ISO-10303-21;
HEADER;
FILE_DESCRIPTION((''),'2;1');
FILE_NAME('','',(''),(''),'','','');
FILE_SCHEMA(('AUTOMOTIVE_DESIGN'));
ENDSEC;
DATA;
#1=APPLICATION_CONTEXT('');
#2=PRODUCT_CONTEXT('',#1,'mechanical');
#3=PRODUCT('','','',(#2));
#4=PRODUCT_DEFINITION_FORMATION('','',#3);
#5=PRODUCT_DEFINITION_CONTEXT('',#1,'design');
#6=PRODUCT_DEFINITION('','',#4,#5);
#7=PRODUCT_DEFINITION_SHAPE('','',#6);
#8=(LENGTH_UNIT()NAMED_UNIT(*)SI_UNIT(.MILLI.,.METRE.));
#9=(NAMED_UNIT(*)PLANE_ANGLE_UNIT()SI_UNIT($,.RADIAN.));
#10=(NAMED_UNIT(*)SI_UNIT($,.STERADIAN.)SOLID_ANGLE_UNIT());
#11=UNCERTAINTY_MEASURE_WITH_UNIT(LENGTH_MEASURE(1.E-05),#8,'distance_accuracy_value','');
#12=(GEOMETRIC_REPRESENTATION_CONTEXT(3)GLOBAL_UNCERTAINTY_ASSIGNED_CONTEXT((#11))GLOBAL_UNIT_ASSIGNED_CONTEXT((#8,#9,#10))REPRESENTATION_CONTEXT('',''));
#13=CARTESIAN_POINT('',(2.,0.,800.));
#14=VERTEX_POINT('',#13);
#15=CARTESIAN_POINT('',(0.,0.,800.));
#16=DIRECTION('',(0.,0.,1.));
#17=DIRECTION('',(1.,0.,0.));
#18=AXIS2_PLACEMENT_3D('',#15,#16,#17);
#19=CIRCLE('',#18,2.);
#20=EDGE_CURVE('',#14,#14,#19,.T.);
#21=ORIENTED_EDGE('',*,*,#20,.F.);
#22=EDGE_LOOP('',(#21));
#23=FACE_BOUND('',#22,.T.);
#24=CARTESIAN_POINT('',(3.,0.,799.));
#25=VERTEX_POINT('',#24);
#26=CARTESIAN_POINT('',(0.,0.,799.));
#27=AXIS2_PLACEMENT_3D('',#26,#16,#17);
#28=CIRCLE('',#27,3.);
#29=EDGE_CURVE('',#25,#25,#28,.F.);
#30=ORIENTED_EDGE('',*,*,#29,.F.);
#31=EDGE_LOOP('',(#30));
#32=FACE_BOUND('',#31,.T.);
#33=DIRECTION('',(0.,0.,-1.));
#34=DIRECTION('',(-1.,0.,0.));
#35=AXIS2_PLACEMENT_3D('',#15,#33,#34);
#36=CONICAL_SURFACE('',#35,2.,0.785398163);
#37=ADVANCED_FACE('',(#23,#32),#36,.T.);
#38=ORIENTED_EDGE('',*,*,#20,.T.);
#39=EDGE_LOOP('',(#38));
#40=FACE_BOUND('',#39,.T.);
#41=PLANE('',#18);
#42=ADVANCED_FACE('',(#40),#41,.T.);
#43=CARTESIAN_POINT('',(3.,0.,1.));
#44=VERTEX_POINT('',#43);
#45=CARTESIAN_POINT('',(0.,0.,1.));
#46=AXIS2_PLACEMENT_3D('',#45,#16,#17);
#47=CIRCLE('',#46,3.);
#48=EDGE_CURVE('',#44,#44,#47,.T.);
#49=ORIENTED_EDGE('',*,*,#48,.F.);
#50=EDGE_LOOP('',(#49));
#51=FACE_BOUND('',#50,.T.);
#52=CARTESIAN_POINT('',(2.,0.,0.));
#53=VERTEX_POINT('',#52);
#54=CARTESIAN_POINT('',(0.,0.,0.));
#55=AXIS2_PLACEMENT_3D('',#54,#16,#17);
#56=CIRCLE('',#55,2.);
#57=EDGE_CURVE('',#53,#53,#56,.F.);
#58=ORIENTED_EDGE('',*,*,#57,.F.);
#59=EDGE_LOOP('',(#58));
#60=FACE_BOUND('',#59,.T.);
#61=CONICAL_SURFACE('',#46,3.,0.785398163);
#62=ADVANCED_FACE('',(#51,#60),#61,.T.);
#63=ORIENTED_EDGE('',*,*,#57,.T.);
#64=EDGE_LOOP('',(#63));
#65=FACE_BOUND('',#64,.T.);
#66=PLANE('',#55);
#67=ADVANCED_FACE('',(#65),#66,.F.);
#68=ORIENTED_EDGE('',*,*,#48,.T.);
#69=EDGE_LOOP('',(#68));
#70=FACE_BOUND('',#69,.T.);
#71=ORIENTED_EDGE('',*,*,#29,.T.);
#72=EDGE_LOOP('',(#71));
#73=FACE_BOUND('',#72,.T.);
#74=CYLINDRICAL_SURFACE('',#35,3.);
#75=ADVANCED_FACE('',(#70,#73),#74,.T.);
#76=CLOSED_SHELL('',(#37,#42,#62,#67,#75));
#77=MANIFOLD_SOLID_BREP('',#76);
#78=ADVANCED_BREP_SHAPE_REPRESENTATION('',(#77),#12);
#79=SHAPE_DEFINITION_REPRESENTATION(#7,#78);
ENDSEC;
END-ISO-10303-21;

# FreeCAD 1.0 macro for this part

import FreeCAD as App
import Part
import Sketcher
from FreeCAD import Vector


def edges_at(feature, points):
    """Names of the edges that pass closest to the given points."""
    edges = feature.Shape.Edges
    near = lambda p: min(range(len(edges)), key=lambda i: edges[i].distToShape(Part.Vertex(*p))[0])
    return sorted({f"Edge{near(p) + 1}" for p in points})

doc = App.newDocument("Part")
params = doc.addObject("Spreadsheet::Sheet", "Params")
for row, (alias, value) in enumerate([
    ("sketch1_diameter", "6 mm"),
    ("pad1_length", "800 mm"),
    ("chamfer_size", "1 mm"),
], start=1):
    params.set(f"A{row}", alias)
    params.set(f"B{row}", "=" + value)
    params.setAlias(f"B{row}", alias)

body = doc.addObject("PartDesign::Body", "Body")

# Sketch on XY plane
sketch1 = body.newObject("Sketcher::SketchObject", "Sketch")
sketch1.AttachmentSupport = (doc.getObject("XY_Plane"), [""])
sketch1.MapMode = "FlatFace"
sketch1.addGeometry(Part.Circle(Vector(0, 0, 0), Vector(0, 0, 1), 3), False)
sketch1.addConstraint([
    Sketcher.Constraint("Coincident", 0, 3, -1, 1),
    Sketcher.Constraint("Diameter", 0, 6.0),
])
sketch1.setExpression("Constraints[1]", "Params.sketch1_diameter")
pad1 = body.newObject("PartDesign::Pad", "Pad")
pad1.Profile = sketch1
pad1.setExpression("Length", "Params.pad1_length")
doc.recompute()

chamfer = body.newObject("PartDesign::Chamfer", "Chamfer")
chamfer.Base = (pad1, edges_at(pad1, [(-3, 0, 0), (-3, 0, 800)]))
chamfer.setExpression("Size", "Params.chamfer_size")

doc.recompute()
